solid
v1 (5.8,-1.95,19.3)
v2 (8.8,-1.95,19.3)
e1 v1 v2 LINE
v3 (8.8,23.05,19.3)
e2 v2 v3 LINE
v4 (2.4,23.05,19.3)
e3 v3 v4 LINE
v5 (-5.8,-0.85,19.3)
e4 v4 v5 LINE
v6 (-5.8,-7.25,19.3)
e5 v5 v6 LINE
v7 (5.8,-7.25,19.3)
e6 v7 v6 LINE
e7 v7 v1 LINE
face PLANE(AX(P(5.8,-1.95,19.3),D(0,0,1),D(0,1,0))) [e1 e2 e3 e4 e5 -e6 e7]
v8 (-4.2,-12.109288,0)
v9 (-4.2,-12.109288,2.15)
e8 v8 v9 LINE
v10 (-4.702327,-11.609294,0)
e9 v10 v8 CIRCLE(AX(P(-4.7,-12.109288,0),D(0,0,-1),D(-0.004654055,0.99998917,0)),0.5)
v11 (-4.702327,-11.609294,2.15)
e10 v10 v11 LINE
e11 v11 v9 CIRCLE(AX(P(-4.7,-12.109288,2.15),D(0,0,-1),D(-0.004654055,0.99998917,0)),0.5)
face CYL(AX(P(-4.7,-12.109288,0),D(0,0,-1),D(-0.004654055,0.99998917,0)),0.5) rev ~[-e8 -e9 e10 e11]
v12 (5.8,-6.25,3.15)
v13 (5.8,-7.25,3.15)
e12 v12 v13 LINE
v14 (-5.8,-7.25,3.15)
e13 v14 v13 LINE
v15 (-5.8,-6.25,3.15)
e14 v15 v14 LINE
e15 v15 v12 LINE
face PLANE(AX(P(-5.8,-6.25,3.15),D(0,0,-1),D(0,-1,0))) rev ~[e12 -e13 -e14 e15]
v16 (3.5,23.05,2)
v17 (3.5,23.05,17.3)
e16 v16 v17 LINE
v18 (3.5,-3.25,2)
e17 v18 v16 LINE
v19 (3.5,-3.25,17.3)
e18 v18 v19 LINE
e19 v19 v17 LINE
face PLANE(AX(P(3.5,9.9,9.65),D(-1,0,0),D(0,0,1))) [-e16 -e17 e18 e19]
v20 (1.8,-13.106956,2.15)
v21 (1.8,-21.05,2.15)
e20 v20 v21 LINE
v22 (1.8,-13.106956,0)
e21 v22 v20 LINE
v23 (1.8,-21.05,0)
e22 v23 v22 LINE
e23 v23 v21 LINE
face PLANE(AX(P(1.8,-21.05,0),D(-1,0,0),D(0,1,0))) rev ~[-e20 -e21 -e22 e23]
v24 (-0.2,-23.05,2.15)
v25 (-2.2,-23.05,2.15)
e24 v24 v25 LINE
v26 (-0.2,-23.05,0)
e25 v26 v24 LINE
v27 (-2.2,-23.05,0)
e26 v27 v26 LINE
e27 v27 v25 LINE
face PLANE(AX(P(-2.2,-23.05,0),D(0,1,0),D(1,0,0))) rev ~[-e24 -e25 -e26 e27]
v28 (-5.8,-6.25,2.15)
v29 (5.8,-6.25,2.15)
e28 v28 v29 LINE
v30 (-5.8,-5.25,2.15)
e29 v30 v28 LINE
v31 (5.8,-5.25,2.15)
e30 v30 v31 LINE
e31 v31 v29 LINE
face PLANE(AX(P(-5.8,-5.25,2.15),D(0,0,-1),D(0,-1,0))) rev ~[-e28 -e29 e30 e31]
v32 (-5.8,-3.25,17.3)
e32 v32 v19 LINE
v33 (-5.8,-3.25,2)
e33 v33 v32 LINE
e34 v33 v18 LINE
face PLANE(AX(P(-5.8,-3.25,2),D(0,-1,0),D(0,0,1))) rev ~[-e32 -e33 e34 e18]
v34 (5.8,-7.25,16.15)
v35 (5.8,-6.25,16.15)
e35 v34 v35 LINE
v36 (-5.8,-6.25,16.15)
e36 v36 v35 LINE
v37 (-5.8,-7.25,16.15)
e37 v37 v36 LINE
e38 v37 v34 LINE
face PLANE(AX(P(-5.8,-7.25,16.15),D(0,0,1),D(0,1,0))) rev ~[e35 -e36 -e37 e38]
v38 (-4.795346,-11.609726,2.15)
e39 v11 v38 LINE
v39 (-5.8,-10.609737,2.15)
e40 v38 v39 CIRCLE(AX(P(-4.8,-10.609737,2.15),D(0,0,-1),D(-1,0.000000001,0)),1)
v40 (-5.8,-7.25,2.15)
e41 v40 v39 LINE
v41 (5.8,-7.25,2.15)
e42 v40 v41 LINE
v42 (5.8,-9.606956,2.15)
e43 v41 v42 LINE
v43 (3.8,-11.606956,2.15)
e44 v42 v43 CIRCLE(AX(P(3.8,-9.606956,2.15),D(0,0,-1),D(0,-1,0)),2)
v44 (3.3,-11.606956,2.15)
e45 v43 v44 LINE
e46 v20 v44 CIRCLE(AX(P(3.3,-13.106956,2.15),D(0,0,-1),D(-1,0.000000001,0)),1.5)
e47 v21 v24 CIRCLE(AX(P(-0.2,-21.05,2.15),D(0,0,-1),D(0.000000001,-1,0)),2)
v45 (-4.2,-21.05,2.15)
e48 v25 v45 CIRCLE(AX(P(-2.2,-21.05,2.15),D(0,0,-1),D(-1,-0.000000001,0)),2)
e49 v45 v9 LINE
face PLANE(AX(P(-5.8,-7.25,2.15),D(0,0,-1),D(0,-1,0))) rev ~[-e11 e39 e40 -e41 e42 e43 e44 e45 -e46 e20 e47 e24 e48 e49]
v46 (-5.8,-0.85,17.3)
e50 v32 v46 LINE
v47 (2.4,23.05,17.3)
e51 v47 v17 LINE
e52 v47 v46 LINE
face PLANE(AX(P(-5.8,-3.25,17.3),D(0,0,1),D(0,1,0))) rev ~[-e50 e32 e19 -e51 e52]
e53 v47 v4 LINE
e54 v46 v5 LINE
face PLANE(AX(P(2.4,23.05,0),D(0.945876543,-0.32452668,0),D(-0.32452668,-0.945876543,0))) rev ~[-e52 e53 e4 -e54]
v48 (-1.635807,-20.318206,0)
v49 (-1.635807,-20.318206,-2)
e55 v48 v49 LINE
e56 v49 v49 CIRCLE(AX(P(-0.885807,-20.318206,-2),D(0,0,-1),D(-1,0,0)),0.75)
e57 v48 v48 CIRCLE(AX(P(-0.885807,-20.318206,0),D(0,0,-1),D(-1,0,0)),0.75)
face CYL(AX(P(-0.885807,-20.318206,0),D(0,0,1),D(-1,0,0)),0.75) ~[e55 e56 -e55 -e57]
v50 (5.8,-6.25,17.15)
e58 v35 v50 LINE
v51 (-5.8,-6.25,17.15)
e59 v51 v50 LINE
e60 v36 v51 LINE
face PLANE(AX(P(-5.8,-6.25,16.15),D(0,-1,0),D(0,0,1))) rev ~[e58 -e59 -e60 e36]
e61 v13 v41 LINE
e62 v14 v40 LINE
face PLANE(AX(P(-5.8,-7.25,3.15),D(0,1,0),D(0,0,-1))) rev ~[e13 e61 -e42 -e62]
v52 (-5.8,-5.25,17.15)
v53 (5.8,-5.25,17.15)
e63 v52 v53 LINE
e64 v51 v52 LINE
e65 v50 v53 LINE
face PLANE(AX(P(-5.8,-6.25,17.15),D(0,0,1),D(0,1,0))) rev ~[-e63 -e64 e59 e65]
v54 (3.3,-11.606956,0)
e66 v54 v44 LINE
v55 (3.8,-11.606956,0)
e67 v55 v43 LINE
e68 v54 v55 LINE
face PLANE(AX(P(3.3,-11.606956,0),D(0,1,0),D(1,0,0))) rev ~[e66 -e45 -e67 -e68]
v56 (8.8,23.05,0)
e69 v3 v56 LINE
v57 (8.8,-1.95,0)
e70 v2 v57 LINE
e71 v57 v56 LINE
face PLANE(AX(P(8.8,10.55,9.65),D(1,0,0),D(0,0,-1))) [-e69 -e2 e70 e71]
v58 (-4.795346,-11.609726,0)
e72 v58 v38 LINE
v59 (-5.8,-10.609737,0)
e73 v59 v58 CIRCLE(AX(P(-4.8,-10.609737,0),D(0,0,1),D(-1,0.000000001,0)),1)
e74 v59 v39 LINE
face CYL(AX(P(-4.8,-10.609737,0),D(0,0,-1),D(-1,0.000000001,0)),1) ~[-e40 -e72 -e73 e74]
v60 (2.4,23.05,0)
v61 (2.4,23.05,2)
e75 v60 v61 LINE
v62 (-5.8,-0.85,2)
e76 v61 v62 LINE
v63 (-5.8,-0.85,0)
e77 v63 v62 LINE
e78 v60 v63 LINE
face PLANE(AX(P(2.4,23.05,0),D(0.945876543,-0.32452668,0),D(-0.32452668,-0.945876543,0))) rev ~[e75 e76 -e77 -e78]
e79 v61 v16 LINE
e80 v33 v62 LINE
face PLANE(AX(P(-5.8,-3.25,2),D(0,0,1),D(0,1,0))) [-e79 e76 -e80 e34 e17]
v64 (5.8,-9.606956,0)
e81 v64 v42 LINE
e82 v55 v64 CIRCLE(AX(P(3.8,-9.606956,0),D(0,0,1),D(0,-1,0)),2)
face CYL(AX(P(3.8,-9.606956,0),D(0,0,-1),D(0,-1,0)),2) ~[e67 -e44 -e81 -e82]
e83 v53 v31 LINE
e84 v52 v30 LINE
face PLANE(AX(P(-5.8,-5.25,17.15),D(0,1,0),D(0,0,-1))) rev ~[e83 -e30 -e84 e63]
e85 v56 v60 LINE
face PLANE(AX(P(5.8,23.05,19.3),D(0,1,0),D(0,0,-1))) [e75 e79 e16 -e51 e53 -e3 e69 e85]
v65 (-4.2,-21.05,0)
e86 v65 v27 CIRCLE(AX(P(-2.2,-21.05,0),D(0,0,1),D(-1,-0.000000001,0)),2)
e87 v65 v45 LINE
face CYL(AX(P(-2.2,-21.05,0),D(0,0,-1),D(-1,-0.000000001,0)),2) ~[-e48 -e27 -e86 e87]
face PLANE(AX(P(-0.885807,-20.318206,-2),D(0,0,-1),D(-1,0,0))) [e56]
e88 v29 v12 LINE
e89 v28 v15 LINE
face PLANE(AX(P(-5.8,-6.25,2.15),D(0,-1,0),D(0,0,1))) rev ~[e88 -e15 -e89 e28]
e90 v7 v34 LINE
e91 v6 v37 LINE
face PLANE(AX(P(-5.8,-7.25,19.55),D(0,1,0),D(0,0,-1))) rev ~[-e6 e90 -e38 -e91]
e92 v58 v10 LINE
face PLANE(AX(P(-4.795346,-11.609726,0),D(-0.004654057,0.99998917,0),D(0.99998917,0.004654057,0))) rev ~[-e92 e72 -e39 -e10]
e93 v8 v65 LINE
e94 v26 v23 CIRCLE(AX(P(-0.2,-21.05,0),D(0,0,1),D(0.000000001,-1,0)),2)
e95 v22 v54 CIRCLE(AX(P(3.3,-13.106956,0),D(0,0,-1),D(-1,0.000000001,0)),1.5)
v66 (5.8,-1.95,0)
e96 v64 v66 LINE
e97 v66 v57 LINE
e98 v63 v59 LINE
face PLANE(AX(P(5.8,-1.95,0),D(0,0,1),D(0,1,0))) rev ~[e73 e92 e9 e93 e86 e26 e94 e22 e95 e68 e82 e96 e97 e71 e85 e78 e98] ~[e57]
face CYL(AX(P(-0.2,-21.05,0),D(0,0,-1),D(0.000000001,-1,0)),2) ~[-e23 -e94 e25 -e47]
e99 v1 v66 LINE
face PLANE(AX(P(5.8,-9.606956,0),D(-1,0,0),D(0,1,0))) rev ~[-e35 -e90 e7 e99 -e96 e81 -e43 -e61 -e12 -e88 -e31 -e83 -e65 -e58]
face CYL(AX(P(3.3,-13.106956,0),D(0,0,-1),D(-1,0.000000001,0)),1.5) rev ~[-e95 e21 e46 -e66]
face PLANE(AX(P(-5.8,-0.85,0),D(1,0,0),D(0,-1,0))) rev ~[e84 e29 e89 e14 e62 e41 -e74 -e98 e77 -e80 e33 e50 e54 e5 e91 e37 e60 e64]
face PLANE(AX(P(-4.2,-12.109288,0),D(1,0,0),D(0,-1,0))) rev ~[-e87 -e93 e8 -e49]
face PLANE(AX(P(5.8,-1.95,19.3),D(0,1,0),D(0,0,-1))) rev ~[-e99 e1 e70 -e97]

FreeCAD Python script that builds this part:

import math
import FreeCAD as App
import Part
import Sketcher


def add_polygon(sketch, points):
    """Adds a closed chain of lines whose ends are joined by coincident constraints."""
    first, n = sketch.GeometryCount, len(points)
    for a, b in zip(points, points[1:] + points[:1]):
        sketch.addGeometry(Part.LineSegment(App.Vector(*a, 0), App.Vector(*b, 0)), False)
    for i in range(n):
        sketch.addConstraint(Sketcher.Constraint("Coincident", first + i, 2, first + (i + 1) % n, 1))

doc = App.newDocument("Part")
body = doc.addObject("PartDesign::Body", "Body")

# Sketch on XY plane
sketch1 = body.newObject("Sketcher::SketchObject", "Sketch")
sketch1.AttachmentSupport = (doc.getObject("XY_Plane"), [""])
sketch1.MapMode = "FlatFace"
sketch1.addGeometry([
    Part.LineSegment(App.Vector(5.8, 23.05, 0), App.Vector(2.4, 23.05, 0)),  # 0
    Part.LineSegment(App.Vector(2.4, 23.05, 0), App.Vector(-5.8, -0.85, 0)),  # 1
    Part.LineSegment(App.Vector(-5.8, -0.85, 0), App.Vector(-5.8, -10.609737, 0)),  # 2
    Part.ArcOfCircle(Part.Circle(App.Vector(-4.8, -10.609737, 0), App.Vector(0, 0, 1), 1), math.radians(180), math.radians(270.266659)),  # 3
    Part.LineSegment(App.Vector(-4.795346, -11.609726, 0), App.Vector(-4.702327, -11.609294, 0)),  # 4
    Part.ArcOfCircle(Part.Circle(App.Vector(-4.7, -12.109288, 0), App.Vector(0, 0, 1), 0.5), math.radians(0), math.radians(90.266659)),  # 5
    Part.LineSegment(App.Vector(-4.2, -12.109288, 0), App.Vector(-4.2, -21.05, 0)),  # 6
    Part.ArcOfCircle(Part.Circle(App.Vector(-2.2, -21.05, 0), App.Vector(0, 0, 1), 2), math.radians(-180), math.radians(-90)),  # 7
    Part.LineSegment(App.Vector(-2.2, -23.05, 0), App.Vector(-0.2, -23.05, 0)),  # 8
    Part.ArcOfCircle(Part.Circle(App.Vector(-0.2, -21.05, 0), App.Vector(0, 0, 1), 2), math.radians(-90), math.radians(0)),  # 9
    Part.LineSegment(App.Vector(1.8, -21.05, 0), App.Vector(1.8, -13.106956, 0)),  # 10
    Part.ArcOfCircle(Part.Circle(App.Vector(3.3, -13.106956, 0), App.Vector(0, 0, 1), 1.5), math.radians(90), math.radians(180)),  # 11
    Part.LineSegment(App.Vector(3.3, -11.606956, 0), App.Vector(3.8, -11.606956, 0)),  # 12
    Part.ArcOfCircle(Part.Circle(App.Vector(3.8, -9.606956, 0), App.Vector(0, 0, 1), 2), math.radians(-90), math.radians(0)),  # 13
    Part.LineSegment(App.Vector(5.8, -9.606956, 0), App.Vector(5.8, 23.05, 0)),  # 14
], False)
sketch1.addConstraint([
    Sketcher.Constraint("Coincident", 0, 2, 1, 1),
    Sketcher.Constraint("Coincident", 1, 2, 2, 1),
    Sketcher.Constraint("Tangent", 2, 2, 3, 1),
    Sketcher.Constraint("Tangent", 3, 2, 4, 1),
    Sketcher.Constraint("Tangent", 4, 2, 5, 2),
    Sketcher.Constraint("Tangent", 5, 1, 6, 1),
    Sketcher.Constraint("Tangent", 6, 2, 7, 1),
    Sketcher.Constraint("Tangent", 7, 2, 8, 1),
    Sketcher.Constraint("Tangent", 8, 2, 9, 1),
    Sketcher.Constraint("Tangent", 9, 2, 10, 1),
    Sketcher.Constraint("Tangent", 10, 2, 11, 2),
    Sketcher.Constraint("Tangent", 11, 1, 12, 1),
    Sketcher.Constraint("Tangent", 12, 2, 13, 1),
    Sketcher.Constraint("Tangent", 13, 2, 14, 1),
    Sketcher.Constraint("Coincident", 14, 2, 0, 1),
    Sketcher.Constraint("Horizontal", 0),
    Sketcher.Constraint("Vertical", 2),
    Sketcher.Constraint("Vertical", 6),
    Sketcher.Constraint("Horizontal", 8),
    Sketcher.Constraint("Vertical", 10),
    Sketcher.Constraint("Horizontal", 12),
    Sketcher.Constraint("Vertical", 14),
    Sketcher.Constraint("Equal", 7, 9),
    Sketcher.Constraint("Equal", 9, 13),
    Sketcher.Constraint("Radius", 3, 1.0),
    Sketcher.Constraint("Radius", 7, 2.0),
    Sketcher.Constraint("Radius", 5, 0.5),
    Sketcher.Constraint("Radius", 11, 1.5),
    Sketcher.Constraint("DistanceX", 8, 1, 8, 2, 2.0),
    Sketcher.Constraint("DistanceX", 0, 2, 0, 1, 3.4),
    Sketcher.Constraint("DistanceX", 12, 1, 12, 2, 0.5),
    Sketcher.Constraint("DistanceX", 3, 3, -1, 1, 4.8),
    Sketcher.Constraint("DistanceX", 5, 3, -1, 1, 4.7),
    Sketcher.Constraint("DistanceY", 9, 3, 0, 2, 44.1),
    Sketcher.Constraint("DistanceY", 7, 3, 1, 2, 20.2),
    Sketcher.Constraint("DistanceY", 7, 3, -1, 1, 21.05),
    Sketcher.Constraint("DistanceY", 6, 2, 6, 1, 8.940712),
    Sketcher.Constraint("Distance", 4, 0.09302),
    Sketcher.Constraint("DistanceY", 10, 1, 10, 2, 7.943044),
])
pad1 = body.newObject("PartDesign::Pad", "Pad")
pad1.Profile = sketch1
pad1.Length = 19.3

# Sketch on YZ plane
sketch2 = body.newObject("Sketcher::SketchObject", "Sketch001")
sketch2.AttachmentSupport = (doc.getObject("YZ_Plane"), [""])
sketch2.MapMode = "FlatFace"
sketch2.AttachmentOffset = App.Placement(App.Vector(0, 0, -5.8), App.Rotation())
add_polygon(sketch2, [(23.05, 2), (-3.25, 2), (-3.25, 17.3), (23.05, 17.3)])  # lines 0-3
sketch2.addConstraint([
    Sketcher.Constraint("Horizontal", 0),
    Sketcher.Constraint("Vertical", 1),
    Sketcher.Constraint("Horizontal", 2),
    Sketcher.Constraint("Vertical", 3),
    Sketcher.Constraint("DistanceX", 0, 2, 0, 1, 26.3),
    Sketcher.Constraint("DistanceY", 1, 1, 1, 2, 15.3),
    Sketcher.Constraint("DistanceY", -1, 1, 0, 2, 2.0),
    Sketcher.Constraint("DistanceX", 0, 2, -1, 1, 3.25),
])
pocket1 = body.newObject("PartDesign::Pocket", "Pocket")
pocket1.Profile = sketch2
pocket1.Length = 9.3
pocket1.Reversed = True

# Sketch on YZ plane
sketch3 = body.newObject("Sketcher::SketchObject", "Sketch002")
sketch3.AttachmentSupport = (doc.getObject("YZ_Plane"), [""])
sketch3.MapMode = "FlatFace"
sketch3.AttachmentOffset = App.Placement(App.Vector(0, 0, -5.8), App.Rotation())
add_polygon(sketch3, [(-5.25, 2.15), (-6.25, 2.15), (-6.25, 3.15), (-7.25, 3.15), (-7.25, 2.15), (-23.25, 2.15), (-23.25, 19.55), (-7.25, 19.55), (-7.25, 16.15), (-6.25, 16.15), (-6.25, 17.15), (-5.25, 17.15)])  # lines 0-11
sketch3.addConstraint([
    Sketcher.Constraint("Horizontal", 0),
    Sketcher.Constraint("Vertical", 1),
    Sketcher.Constraint("Horizontal", 2),
    Sketcher.Constraint("Vertical", 3),
    Sketcher.Constraint("Horizontal", 4),
    Sketcher.Constraint("Vertical", 5),
    Sketcher.Constraint("Horizontal", 6),
    Sketcher.Constraint("Vertical", 7),
    Sketcher.Constraint("Horizontal", 8),
    Sketcher.Constraint("Vertical", 9),
    Sketcher.Constraint("Horizontal", 10),
    Sketcher.Constraint("Vertical", 11),
    Sketcher.Constraint("Horizontal", 0, 2, 3, 2),
    Sketcher.Constraint("Vertical", 3, 2, 6, 2),
    Sketcher.Constraint("Vertical", 1, 2, 8, 2),
    Sketcher.Constraint("Equal", 0, 2),
    Sketcher.Constraint("Equal", 10, 1),
    Sketcher.Constraint("Equal", 3, 9),
    Sketcher.Constraint("DistanceX", 0, 2, 0, 1, 1.0),
    Sketcher.Constraint("DistanceX", 4, 2, 4, 1, 16.0),
    Sketcher.Constraint("DistanceY", 11, 2, 11, 1, 15.0),
    Sketcher.Constraint("DistanceY", 5, 1, 5, 2, 17.4),
    Sketcher.Constraint("DistanceX", 0, 2, -1, 1, 6.25),
    Sketcher.Constraint("DistanceY", -1, 1, 0, 2, 2.15),
])
pocket2 = body.newObject("PartDesign::Pocket", "Pocket001")
pocket2.Profile = sketch3
pocket2.Length = 12
pocket2.Reversed = True

# Sketch on XY plane
sketch4 = body.newObject("Sketcher::SketchObject", "Sketch003")
sketch4.AttachmentSupport = (doc.getObject("XY_Plane"), [""])
sketch4.MapMode = "FlatFace"
sketch4.addGeometry(Part.Circle(App.Vector(-0.885807, -20.318206, 0), App.Vector(0, 0, 1), 0.75), False)
sketch4.addConstraint([
    Sketcher.Constraint("Diameter", 0, 1.5),
    Sketcher.Constraint("DistanceX", 0, 3, -1, 1, 0.885807),
    Sketcher.Constraint("DistanceY", 0, 3, -1, 1, 20.318206),
])
pad2 = body.newObject("PartDesign::Pad", "Pad001")
pad2.Profile = sketch4
pad2.Length = 2
pad2.Reversed = True

# Sketch on YZ plane
sketch5 = body.newObject("Sketcher::SketchObject", "Sketch004")
sketch5.AttachmentSupport = (doc.getObject("YZ_Plane"), [""])
sketch5.MapMode = "FlatFace"
sketch5.AttachmentOffset = App.Placement(App.Vector(0, 0, 5.8), App.Rotation())
add_polygon(sketch5, [(23.05, 19.3), (-1.95, 19.3), (-1.95, 0), (23.05, 0)])  # lines 0-3
sketch5.addConstraint([
    Sketcher.Constraint("Horizontal", 0),
    Sketcher.Constraint("Vertical", 1),
    Sketcher.Constraint("Horizontal", 2),
    Sketcher.Constraint("Vertical", 3),
    Sketcher.Constraint("PointOnObject", 1, 2, -1),
    Sketcher.Constraint("DistanceX", 0, 2, 0, 1, 25.0),
    Sketcher.Constraint("DistanceY", 1, 2, 1, 1, 19.3),
    Sketcher.Constraint("DistanceX", 0, 2, -1, 1, 1.95),
])
pad3 = body.newObject("PartDesign::Pad", "Pad002")
pad3.Profile = sketch5
pad3.Length = 3

doc.recompute()
